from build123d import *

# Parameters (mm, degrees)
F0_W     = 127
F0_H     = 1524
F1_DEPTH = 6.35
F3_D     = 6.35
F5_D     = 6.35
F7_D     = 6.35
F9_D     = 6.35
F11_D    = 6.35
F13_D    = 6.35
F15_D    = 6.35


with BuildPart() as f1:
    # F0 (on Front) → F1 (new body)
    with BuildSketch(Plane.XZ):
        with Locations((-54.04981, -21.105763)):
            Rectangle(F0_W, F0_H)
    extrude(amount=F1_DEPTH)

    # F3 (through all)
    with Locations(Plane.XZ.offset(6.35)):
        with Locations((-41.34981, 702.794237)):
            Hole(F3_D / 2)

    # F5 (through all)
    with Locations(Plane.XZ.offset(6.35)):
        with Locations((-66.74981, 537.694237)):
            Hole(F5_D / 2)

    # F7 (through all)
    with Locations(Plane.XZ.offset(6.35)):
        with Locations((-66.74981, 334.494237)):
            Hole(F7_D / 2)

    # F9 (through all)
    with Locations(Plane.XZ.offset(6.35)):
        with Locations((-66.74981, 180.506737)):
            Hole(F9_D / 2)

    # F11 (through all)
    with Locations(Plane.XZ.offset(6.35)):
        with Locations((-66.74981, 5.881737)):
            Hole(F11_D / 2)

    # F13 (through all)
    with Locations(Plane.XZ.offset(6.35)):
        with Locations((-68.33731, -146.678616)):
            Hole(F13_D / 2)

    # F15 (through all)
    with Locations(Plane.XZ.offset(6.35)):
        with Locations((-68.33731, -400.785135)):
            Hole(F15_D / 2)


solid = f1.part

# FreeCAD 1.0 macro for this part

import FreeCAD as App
import Part
import Sketcher
Q = App.Units.Quantity

doc = App.newDocument("Part")
params = doc.addObject("Spreadsheet::Sheet", "Params")
for row, (alias, value) in enumerate([
    ("sketch1_width", "5 in"),
    ("sketch1_height", "60 in"),
    ("pad1_length", "0.25 in"),
    ("sketch2_diameter", "0.25 in"),
    ("hole_diameter", "0.25 in"),
    ("sketch3_diameter", "0.25 in"),
    ("hole2_diameter", "0.25 in"),
    ("sketch4_diameter", "0.25 in"),
    ("hole3_diameter", "0.25 in"),
    ("sketch5_diameter", "0.25 in"),
    ("hole4_diameter", "0.25 in"),
    ("sketch6_diameter", "0.25 in"),
    ("hole5_diameter", "0.25 in"),
    ("sketch7_diameter", "0.25 in"),
    ("hole6_diameter", "0.25 in"),
    ("sketch8_diameter", "0.25 in"),
    ("hole7_diameter", "0.25 in"),
], start=1):
    params.set(f"A{row}", alias)
    params.set(f"B{row}", "=" + value)
    params.setAlias(f"B{row}", alias)

body = doc.addObject("PartDesign::Body", "Body")

# Sketch on XZ plane
sketch1 = body.newObject("Sketcher::SketchObject", "Sketch")
sketch1.AttachmentSupport = (doc.getObject("XZ_Plane"), [""])
sketch1.MapMode = "FlatFace"
sketch1.addGeometry(Part.LineSegment(App.Vector(-118, 741, 0), App.Vector(-118, -783, 0)), False)
sketch1.addGeometry(Part.LineSegment(App.Vector(-118, -783, 0), App.Vector(9, -783, 0)), False)
sketch1.addGeometry(Part.LineSegment(App.Vector(9, -783, 0), App.Vector(9, 741, 0)), False)
sketch1.addGeometry(Part.LineSegment(App.Vector(9, 741, 0), App.Vector(-118, 741, 0)), False)
sketch1.addConstraint(Sketcher.Constraint("Coincident", 0, 2, 1, 1))
sketch1.addConstraint(Sketcher.Constraint("Coincident", 1, 2, 2, 1))
sketch1.addConstraint(Sketcher.Constraint("Coincident", 2, 2, 3, 1))
sketch1.addConstraint(Sketcher.Constraint("Coincident", 3, 2, 0, 1))
sketch1.addConstraint(Sketcher.Constraint("Vertical", 0))
sketch1.addConstraint(Sketcher.Constraint("Horizontal", 1))
sketch1.addConstraint(Sketcher.Constraint("Vertical", 2))
sketch1.addConstraint(Sketcher.Constraint("Horizontal", 3))
sketch1.addConstraint(Sketcher.Constraint("DistanceX", 1, 1, 1, 2, Q("5 in")))
sketch1.addConstraint(Sketcher.Constraint("DistanceY", 0, 2, 0, 1, Q("60 in")))
sketch1.addConstraint(Sketcher.Constraint("DistanceX", 0, 2, -1, 1, Q("117.54981 mm")))
sketch1.addConstraint(Sketcher.Constraint("DistanceY", 0, 2, -1, 1, Q("783.105763 mm")))
sketch1.setExpression("Constraints[8]", "Params.sketch1_width")
sketch1.setExpression("Constraints[9]", "Params.sketch1_height")
pad1 = body.newObject("PartDesign::Pad", "Pad")
pad1.Profile = sketch1
pad1.setExpression("Length", "Params.pad1_length")

# Sketch on XZ plane
sketch2 = body.newObject("Sketcher::SketchObject", "Sketch001")
sketch2.AttachmentSupport = (doc.getObject("XZ_Plane"), [""])
sketch2.MapMode = "FlatFace"
sketch2.AttachmentOffset = App.Placement(App.Vector(0, 0, 0.25 * 25.4), App.Rotation())
sketch2.addGeometry(Part.Circle(App.Vector(-41.3, 702.8, 0), App.Vector(0, 0, 1), 3.2), False)
sketch2.addConstraint(Sketcher.Constraint("Diameter", 0, Q("0.25 in")))
sketch2.addConstraint(Sketcher.Constraint("DistanceX", 0, 3, -1, 1, Q("41.34981 mm")))
sketch2.addConstraint(Sketcher.Constraint("DistanceY", -1, 1, 0, 3, Q("702.794237 mm")))
sketch2.setExpression("Constraints[0]", "Params.sketch2_diameter")
doc.recompute()
hole = body.newObject("PartDesign::Hole", "Hole")
hole.Profile = sketch2
hole.ThreadType = "None"
hole.setExpression("Diameter", "Params.hole_diameter")
hole.DepthType = "ThroughAll"

# Sketch on XZ plane
sketch3 = body.newObject("Sketcher::SketchObject", "Sketch002")
sketch3.AttachmentSupport = (doc.getObject("XZ_Plane"), [""])
sketch3.MapMode = "FlatFace"
sketch3.AttachmentOffset = App.Placement(App.Vector(0, 0, 0.25 * 25.4), App.Rotation())
sketch3.addGeometry(Part.Circle(App.Vector(-66.7, 537.7, 0), App.Vector(0, 0, 1), 3.2), False)
sketch3.addConstraint(Sketcher.Constraint("Diameter", 0, Q("0.25 in")))
sketch3.addConstraint(Sketcher.Constraint("DistanceX", 0, 3, -1, 1, Q("66.74981 mm")))
sketch3.addConstraint(Sketcher.Constraint("DistanceY", -1, 1, 0, 3, Q("537.694237 mm")))
sketch3.setExpression("Constraints[0]", "Params.sketch3_diameter")
doc.recompute()
hole2 = body.newObject("PartDesign::Hole", "Hole001")
hole2.Profile = sketch3
hole2.ThreadType = "None"
hole2.setExpression("Diameter", "Params.hole2_diameter")
hole2.DepthType = "ThroughAll"

# Sketch on XZ plane
sketch4 = body.newObject("Sketcher::SketchObject", "Sketch003")
sketch4.AttachmentSupport = (doc.getObject("XZ_Plane"), [""])
sketch4.MapMode = "FlatFace"
sketch4.AttachmentOffset = App.Placement(App.Vector(0, 0, 0.25 * 25.4), App.Rotation())
sketch4.addGeometry(Part.Circle(App.Vector(-66.7, 334.5, 0), App.Vector(0, 0, 1), 3.2), False)
sketch4.addConstraint(Sketcher.Constraint("Diameter", 0, Q("0.25 in")))
sketch4.addConstraint(Sketcher.Constraint("DistanceX", 0, 3, -1, 1, Q("66.74981 mm")))
sketch4.addConstraint(Sketcher.Constraint("DistanceY", -1, 1, 0, 3, Q("334.494237 mm")))
sketch4.setExpression("Constraints[0]", "Params.sketch4_diameter")
doc.recompute()
hole3 = body.newObject("PartDesign::Hole", "Hole002")
hole3.Profile = sketch4
hole3.ThreadType = "None"
hole3.setExpression("Diameter", "Params.hole3_diameter")
hole3.DepthType = "ThroughAll"

# Sketch on XZ plane
sketch5 = body.newObject("Sketcher::SketchObject", "Sketch004")
sketch5.AttachmentSupport = (doc.getObject("XZ_Plane"), [""])
sketch5.MapMode = "FlatFace"
sketch5.AttachmentOffset = App.Placement(App.Vector(0, 0, 0.25 * 25.4), App.Rotation())
sketch5.addGeometry(Part.Circle(App.Vector(-66.7, 180.5, 0), App.Vector(0, 0, 1), 3.2), False)
sketch5.addConstraint(Sketcher.Constraint("Diameter", 0, Q("0.25 in")))
sketch5.addConstraint(Sketcher.Constraint("DistanceX", 0, 3, -1, 1, Q("66.74981 mm")))
sketch5.addConstraint(Sketcher.Constraint("DistanceY", -1, 1, 0, 3, Q("180.506737 mm")))
sketch5.setExpression("Constraints[0]", "Params.sketch5_diameter")
doc.recompute()
hole4 = body.newObject("PartDesign::Hole", "Hole003")
hole4.Profile = sketch5
hole4.ThreadType = "None"
hole4.setExpression("Diameter", "Params.hole4_diameter")
hole4.DepthType = "ThroughAll"

# Sketch on XZ plane
sketch6 = body.newObject("Sketcher::SketchObject", "Sketch005")
sketch6.AttachmentSupport = (doc.getObject("XZ_Plane"), [""])
sketch6.MapMode = "FlatFace"
sketch6.AttachmentOffset = App.Placement(App.Vector(0, 0, 0.25 * 25.4), App.Rotation())
sketch6.addGeometry(Part.Circle(App.Vector(-66.7, 5.9, 0), App.Vector(0, 0, 1), 3.2), False)
sketch6.addConstraint(Sketcher.Constraint("Diameter", 0, Q("0.25 in")))
sketch6.addConstraint(Sketcher.Constraint("DistanceX", 0, 3, -1, 1, Q("66.74981 mm")))
sketch6.addConstraint(Sketcher.Constraint("DistanceY", -1, 1, 0, 3, Q("5.881737 mm")))
sketch6.setExpression("Constraints[0]", "Params.sketch6_diameter")
doc.recompute()
hole5 = body.newObject("PartDesign::Hole", "Hole004")
hole5.Profile = sketch6
hole5.ThreadType = "None"
hole5.setExpression("Diameter", "Params.hole5_diameter")
hole5.DepthType = "ThroughAll"

# Sketch on XZ plane
sketch7 = body.newObject("Sketcher::SketchObject", "Sketch006")
sketch7.AttachmentSupport = (doc.getObject("XZ_Plane"), [""])
sketch7.MapMode = "FlatFace"
sketch7.AttachmentOffset = App.Placement(App.Vector(0, 0, 0.25 * 25.4), App.Rotation())
sketch7.addGeometry(Part.Circle(App.Vector(-68.3, -146.7, 0), App.Vector(0, 0, 1), 3.2), False)
sketch7.addConstraint(Sketcher.Constraint("Diameter", 0, Q("0.25 in")))
sketch7.addConstraint(Sketcher.Constraint("DistanceX", 0, 3, -1, 1, Q("68.33731 mm")))
sketch7.addConstraint(Sketcher.Constraint("DistanceY", 0, 3, -1, 1, Q("146.678616 mm")))
sketch7.setExpression("Constraints[0]", "Params.sketch7_diameter")
doc.recompute()
hole6 = body.newObject("PartDesign::Hole", "Hole005")
hole6.Profile = sketch7
hole6.ThreadType = "None"
hole6.setExpression("Diameter", "Params.hole6_diameter")
hole6.DepthType = "ThroughAll"

# Sketch on XZ plane
sketch8 = body.newObject("Sketcher::SketchObject", "Sketch007")
sketch8.AttachmentSupport = (doc.getObject("XZ_Plane"), [""])
sketch8.MapMode = "FlatFace"
sketch8.AttachmentOffset = App.Placement(App.Vector(0, 0, 0.25 * 25.4), App.Rotation())
sketch8.addGeometry(Part.Circle(App.Vector(-68.3, -400.8, 0), App.Vector(0, 0, 1), 3.2), False)
sketch8.addConstraint(Sketcher.Constraint("Diameter", 0, Q("0.25 in")))
sketch8.addConstraint(Sketcher.Constraint("DistanceX", 0, 3, -1, 1, Q("68.33731 mm")))
sketch8.addConstraint(Sketcher.Constraint("DistanceY", 0, 3, -1, 1, Q("400.785135 mm")))
sketch8.setExpression("Constraints[0]", "Params.sketch8_diameter")
doc.recompute()
hole7 = body.newObject("PartDesign::Hole", "Hole006")
hole7.Profile = sketch8
hole7.ThreadType = "None"
hole7.setExpression("Diameter", "Params.hole7_diameter")
hole7.DepthType = "ThroughAll"

doc.recompute()
